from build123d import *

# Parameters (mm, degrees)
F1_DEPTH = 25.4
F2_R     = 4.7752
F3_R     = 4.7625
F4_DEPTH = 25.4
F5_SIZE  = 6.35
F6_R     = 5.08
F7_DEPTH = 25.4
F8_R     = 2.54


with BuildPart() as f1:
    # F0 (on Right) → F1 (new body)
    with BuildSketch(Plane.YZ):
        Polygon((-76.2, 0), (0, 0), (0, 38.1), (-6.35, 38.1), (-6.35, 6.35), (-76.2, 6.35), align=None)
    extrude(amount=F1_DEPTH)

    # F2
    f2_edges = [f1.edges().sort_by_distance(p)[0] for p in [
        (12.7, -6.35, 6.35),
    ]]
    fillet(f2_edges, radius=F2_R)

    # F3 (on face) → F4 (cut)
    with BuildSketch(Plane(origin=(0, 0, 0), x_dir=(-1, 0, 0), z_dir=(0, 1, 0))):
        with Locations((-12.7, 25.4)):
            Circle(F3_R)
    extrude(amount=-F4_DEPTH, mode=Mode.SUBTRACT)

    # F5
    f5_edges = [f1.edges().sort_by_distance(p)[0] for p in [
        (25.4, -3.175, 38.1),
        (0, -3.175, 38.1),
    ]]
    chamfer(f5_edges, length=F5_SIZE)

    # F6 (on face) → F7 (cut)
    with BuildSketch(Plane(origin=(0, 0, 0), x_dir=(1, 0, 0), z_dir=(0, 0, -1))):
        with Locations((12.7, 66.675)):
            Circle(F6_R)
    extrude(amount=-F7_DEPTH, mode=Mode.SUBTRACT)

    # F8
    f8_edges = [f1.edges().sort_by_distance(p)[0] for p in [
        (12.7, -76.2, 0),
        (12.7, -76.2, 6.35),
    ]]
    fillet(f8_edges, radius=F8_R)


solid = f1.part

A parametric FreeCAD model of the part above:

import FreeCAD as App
import Part
import Sketcher
from FreeCAD import Vector
Q = App.Units.Quantity


def edges_at(feature, points):
    """Names of the edges that pass closest to the given points."""
    edges = feature.Shape.Edges
    near = lambda p: min(range(len(edges)), key=lambda i: edges[i].distToShape(Part.Vertex(*p))[0])
    return sorted({f"Edge{near(p) + 1}" for p in points})

doc = App.newDocument("Part")
body = doc.addObject("PartDesign::Body", "Body")

# Sketch on YZ plane
sketch1 = doc.addObject("Sketcher::SketchObject", "Sketch")
body.addObject(sketch1)
sketch1.AttachmentSupport = (doc.YZ_Plane, [""])
sketch1.MapMode = "FlatFace"
sketch1.addGeometry([
    Part.LineSegment(Vector(-76, 0, 0), Vector(0, 0, 0)),  # 0
    Part.LineSegment(Vector(0, 0, 0), Vector(0, 38, 0)),  # 1
    Part.LineSegment(Vector(0, 38, 0), Vector(-6, 38, 0)),  # 2
    Part.LineSegment(Vector(-6, 38, 0), Vector(-6, 6, 0)),  # 3
    Part.LineSegment(Vector(-6, 6, 0), Vector(-76, 6, 0)),  # 4
    Part.LineSegment(Vector(-76, 6, 0), Vector(-76, 0, 0)),  # 5
], False)
sketch1.addConstraint([
    Sketcher.Constraint("Coincident", 0, 2, 1, 1),
    Sketcher.Constraint("Coincident", 1, 2, 2, 1),
    Sketcher.Constraint("Coincident", 2, 2, 3, 1),
    Sketcher.Constraint("Coincident", 3, 2, 4, 1),
    Sketcher.Constraint("Coincident", 4, 2, 5, 1),
    Sketcher.Constraint("Coincident", 5, 2, 0, 1),
    Sketcher.Constraint("Horizontal", 0),
    Sketcher.Constraint("Vertical", 1),
    Sketcher.Constraint("Horizontal", 2),
    Sketcher.Constraint("Vertical", 3),
    Sketcher.Constraint("Horizontal", 4),
    Sketcher.Constraint("Vertical", 5),
    Sketcher.Constraint("Coincident", 0, 2, -1, 1),
    Sketcher.Constraint("Equal", 2, 5),
    Sketcher.Constraint("DistanceX", 0, 1, 0, 2, Q("3 in")),
    Sketcher.Constraint("DistanceY", 1, 1, 1, 2, Q("1.5 in")),
    Sketcher.Constraint("DistanceX", 2, 2, 2, 1, Q("0.25 in")),
])
pad1 = doc.addObject("PartDesign::Pad", "Pad")
body.addObject(pad1)
pad1.Profile = sketch1
pad1.Length = Q("1 in")
doc.recompute()

fillet = doc.addObject("PartDesign::Fillet", "Fillet")
body.addObject(fillet)
fillet.Base = (pad1, edges_at(pad1, [(12.7, -6.35, 6.35)]))
fillet.Radius = Q("0.188 in")

# Sketch on XZ plane
sketch2 = doc.addObject("Sketcher::SketchObject", "Sketch001")
body.addObject(sketch2)
sketch2.AttachmentSupport = (doc.XZ_Plane, [""])
sketch2.MapMode = "FlatFace"
sketch2.addGeometry(Part.Circle(Vector(12.7, 25.4, 0), Vector(0, 0, 1), 4.8), False)
sketch2.addConstraint([
    Sketcher.Constraint("Diameter", 0, Q("0.375 in")),
    Sketcher.Constraint("DistanceY", -1, 1, 0, 3, Q("1 in")),
    Sketcher.Constraint("DistanceX", -1, 1, 0, 3, Q("0.5 in")),
])
pocket1 = doc.addObject("PartDesign::Pocket", "Pocket")
body.addObject(pocket1)
pocket1.Profile = sketch2
pocket1.Length = Q("1 in")
pocket1.Reversed = True
doc.recompute()

chamfer = doc.addObject("PartDesign::Chamfer", "Chamfer")
body.addObject(chamfer)
chamfer.Base = (pocket1, edges_at(pocket1, [(25.4, -3.175, 38.1), (0, -3.175, 38.1)]))
chamfer.Size = Q("0.25 in")

# Sketch on XY plane
sketch3 = doc.addObject("Sketcher::SketchObject", "Sketch002")
body.addObject(sketch3)
sketch3.AttachmentSupport = (doc.XY_Plane, [""])
sketch3.MapMode = "FlatFace"
sketch3.addGeometry(Part.Circle(Vector(13, -67, 0), Vector(0, 0, 1), 5), False)
sketch3.addConstraint([
    Sketcher.Constraint("Diameter", 0, Q("0.4 in")),
    Sketcher.Constraint("DistanceX", -1, 1, 0, 3, Q("0.5 in")),
    Sketcher.Constraint("DistanceY", 0, 3, -1, 1, Q("2.625 in")),
])
pocket2 = doc.addObject("PartDesign::Pocket", "Pocket001")
body.addObject(pocket2)
pocket2.Profile = sketch3
pocket2.Length = Q("1 in")
pocket2.Reversed = True
doc.recompute()

fillet2 = doc.addObject("PartDesign::Fillet", "Fillet001")
body.addObject(fillet2)
fillet2.Base = (pocket2, edges_at(pocket2, [(12.7, -76.2, 0), (12.7, -76.2, 6.35)]))
fillet2.Radius = Q("0.1 in")

doc.recompute()
